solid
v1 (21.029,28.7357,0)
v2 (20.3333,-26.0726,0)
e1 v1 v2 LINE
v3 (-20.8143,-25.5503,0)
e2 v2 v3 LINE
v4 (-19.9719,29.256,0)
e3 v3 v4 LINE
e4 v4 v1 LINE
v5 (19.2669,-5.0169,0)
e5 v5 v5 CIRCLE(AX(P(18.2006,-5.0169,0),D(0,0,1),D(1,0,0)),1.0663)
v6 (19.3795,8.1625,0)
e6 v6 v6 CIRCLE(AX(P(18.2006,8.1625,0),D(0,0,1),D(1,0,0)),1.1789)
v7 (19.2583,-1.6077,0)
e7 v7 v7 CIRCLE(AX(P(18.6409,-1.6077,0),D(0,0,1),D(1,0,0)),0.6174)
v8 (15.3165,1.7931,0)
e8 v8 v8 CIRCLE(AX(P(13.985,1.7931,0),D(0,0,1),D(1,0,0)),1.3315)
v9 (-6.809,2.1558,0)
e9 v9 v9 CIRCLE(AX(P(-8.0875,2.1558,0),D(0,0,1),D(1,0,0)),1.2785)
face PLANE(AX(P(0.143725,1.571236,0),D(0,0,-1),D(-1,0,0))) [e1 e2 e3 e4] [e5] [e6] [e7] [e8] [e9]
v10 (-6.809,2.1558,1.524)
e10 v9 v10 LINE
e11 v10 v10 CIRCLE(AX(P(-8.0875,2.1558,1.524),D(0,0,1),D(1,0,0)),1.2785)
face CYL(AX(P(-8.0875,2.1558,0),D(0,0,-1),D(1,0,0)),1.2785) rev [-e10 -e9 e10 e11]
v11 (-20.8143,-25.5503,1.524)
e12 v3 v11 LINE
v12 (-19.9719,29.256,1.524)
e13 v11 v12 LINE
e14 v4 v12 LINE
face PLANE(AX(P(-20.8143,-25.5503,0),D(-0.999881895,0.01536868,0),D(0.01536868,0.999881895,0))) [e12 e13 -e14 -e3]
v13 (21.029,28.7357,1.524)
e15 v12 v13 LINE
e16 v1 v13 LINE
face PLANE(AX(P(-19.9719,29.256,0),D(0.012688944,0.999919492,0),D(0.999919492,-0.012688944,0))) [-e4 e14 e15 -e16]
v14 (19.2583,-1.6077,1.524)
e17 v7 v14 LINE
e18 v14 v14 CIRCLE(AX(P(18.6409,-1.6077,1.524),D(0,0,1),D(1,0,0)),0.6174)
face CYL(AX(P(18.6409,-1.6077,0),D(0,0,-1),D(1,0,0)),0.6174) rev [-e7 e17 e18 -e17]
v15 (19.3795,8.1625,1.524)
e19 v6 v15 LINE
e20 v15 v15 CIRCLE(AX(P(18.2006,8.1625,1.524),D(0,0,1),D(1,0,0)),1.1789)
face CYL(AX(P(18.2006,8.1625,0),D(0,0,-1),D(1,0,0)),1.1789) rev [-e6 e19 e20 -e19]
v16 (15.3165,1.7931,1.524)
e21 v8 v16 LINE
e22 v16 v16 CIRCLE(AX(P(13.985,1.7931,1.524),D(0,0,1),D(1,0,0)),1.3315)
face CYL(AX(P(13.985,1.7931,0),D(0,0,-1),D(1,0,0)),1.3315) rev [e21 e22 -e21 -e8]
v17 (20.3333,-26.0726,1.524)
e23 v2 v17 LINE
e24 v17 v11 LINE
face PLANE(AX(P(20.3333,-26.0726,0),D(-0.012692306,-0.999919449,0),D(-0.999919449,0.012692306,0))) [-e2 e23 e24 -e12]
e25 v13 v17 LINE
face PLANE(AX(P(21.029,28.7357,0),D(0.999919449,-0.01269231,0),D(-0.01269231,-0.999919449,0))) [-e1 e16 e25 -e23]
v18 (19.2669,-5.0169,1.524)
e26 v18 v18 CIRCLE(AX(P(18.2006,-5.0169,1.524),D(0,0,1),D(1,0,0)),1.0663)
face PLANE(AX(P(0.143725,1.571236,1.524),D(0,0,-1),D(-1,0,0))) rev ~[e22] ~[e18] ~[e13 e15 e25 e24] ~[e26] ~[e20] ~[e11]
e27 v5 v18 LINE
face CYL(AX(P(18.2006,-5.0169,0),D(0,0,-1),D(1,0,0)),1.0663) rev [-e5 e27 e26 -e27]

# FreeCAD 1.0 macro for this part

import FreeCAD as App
import Part
import Sketcher
Q = App.Units.Quantity

doc = App.newDocument("Part")
body = doc.addObject("PartDesign::Body", "Body")

# Sketch on XY plane
sketch1 = doc.addObject("Sketcher::SketchObject", "Sketch")
body.addObject(sketch1)
sketch1.AttachmentSupport = (doc.XY_Plane, [""])
sketch1.MapMode = "FlatFace"
sketch1.addGeometry([
    Part.LineSegment(App.Vector(-20, 29.3, 0), App.Vector(-20.8, -25.6, 0)),  # 0
    Part.LineSegment(App.Vector(-20.8, -25.6, 0), App.Vector(20.3, -26.1, 0)),  # 1
    Part.LineSegment(App.Vector(20.3, -26.1, 0), App.Vector(21, 28.7, 0)),  # 2
    Part.LineSegment(App.Vector(21, 28.7, 0), App.Vector(-20, 29.3, 0)),  # 3
    Part.Circle(App.Vector(18.2, -5, 0), App.Vector(0, 0, 1), 1.1),  # 4
    Part.Circle(App.Vector(18.6, -1.6, 0), App.Vector(0, 0, 1), 0.6),  # 5
    Part.Circle(App.Vector(-8.1, 2.2, 0), App.Vector(0, 0, 1), 1.3),  # 6
    Part.Circle(App.Vector(14, 1.8, 0), App.Vector(0, 0, 1), 1.3),  # 7
    Part.Circle(App.Vector(18.2, 8.2, 0), App.Vector(0, 0, 1), 1.2),  # 8
], False)
sketch1.addConstraint([
    Sketcher.Constraint("Coincident", 0, 2, 1, 1),
    Sketcher.Constraint("Coincident", 1, 2, 2, 1),
    Sketcher.Constraint("Coincident", 2, 2, 3, 1),
    Sketcher.Constraint("Coincident", 3, 2, 0, 1),
    Sketcher.Constraint("Perpendicular", 1, 2),
    Sketcher.Constraint("Perpendicular", 2, 3),
    Sketcher.Constraint("Vertical", 4, 3, 8, 3),
    Sketcher.Constraint("Diameter", 4, 2.1326),
    Sketcher.Constraint("Diameter", 5, 1.2348),
    Sketcher.Constraint("Diameter", 6, 2.557),
    Sketcher.Constraint("Diameter", 7, 2.663),
    Sketcher.Constraint("Diameter", 8, 2.3578),
    Sketcher.Constraint("Angle", 0, Q("-90.8806 deg")),
    Sketcher.Constraint("DistanceX", 6, 3, 7, 3, Q("0.869 in")),
    Sketcher.Constraint("DistanceX", -1, 1, 5, 3, Q("0.7339 in")),
    Sketcher.Constraint("DistanceY", 5, 3, -1, 1, Q("0.0633 in")),
    Sketcher.Constraint("DistanceX", 6, 3, -1, 1, Q("0.3184 in")),
    Sketcher.Constraint("DistanceY", -1, 1, 7, 3, Q("0.0706 in")),
    Sketcher.Constraint("DistanceX", 3, 2, -1, 1, Q("0.7863 in")),
    Sketcher.Constraint("DistanceY", -1, 1, 3, 2, Q("1.1518 in")),
    Sketcher.Constraint("DistanceY", 4, 3, 6, 3, Q("0.2824 in")),
    Sketcher.Constraint("DistanceY", 4, 3, 7, 3, Q("0.2681 in")),
    Sketcher.Constraint("DistanceY", 0, 2, 6, 3, Q("1.0908 in")),
    Sketcher.Constraint("DistanceX", 3, 2, 2, 2, Q("1.6142 in")),
    Sketcher.Constraint("Distance", 1, 41.151),
    Sketcher.Constraint("DistanceX", -1, 1, 4, 3, 18.2006),
    Sketcher.Constraint("DistanceY", -1, 1, 8, 3, 8.1625),
])
pad1 = doc.addObject("PartDesign::Pad", "Pad")
body.addObject(pad1)
pad1.Profile = sketch1
pad1.Length = Q("0.06 in")

doc.recompute()
